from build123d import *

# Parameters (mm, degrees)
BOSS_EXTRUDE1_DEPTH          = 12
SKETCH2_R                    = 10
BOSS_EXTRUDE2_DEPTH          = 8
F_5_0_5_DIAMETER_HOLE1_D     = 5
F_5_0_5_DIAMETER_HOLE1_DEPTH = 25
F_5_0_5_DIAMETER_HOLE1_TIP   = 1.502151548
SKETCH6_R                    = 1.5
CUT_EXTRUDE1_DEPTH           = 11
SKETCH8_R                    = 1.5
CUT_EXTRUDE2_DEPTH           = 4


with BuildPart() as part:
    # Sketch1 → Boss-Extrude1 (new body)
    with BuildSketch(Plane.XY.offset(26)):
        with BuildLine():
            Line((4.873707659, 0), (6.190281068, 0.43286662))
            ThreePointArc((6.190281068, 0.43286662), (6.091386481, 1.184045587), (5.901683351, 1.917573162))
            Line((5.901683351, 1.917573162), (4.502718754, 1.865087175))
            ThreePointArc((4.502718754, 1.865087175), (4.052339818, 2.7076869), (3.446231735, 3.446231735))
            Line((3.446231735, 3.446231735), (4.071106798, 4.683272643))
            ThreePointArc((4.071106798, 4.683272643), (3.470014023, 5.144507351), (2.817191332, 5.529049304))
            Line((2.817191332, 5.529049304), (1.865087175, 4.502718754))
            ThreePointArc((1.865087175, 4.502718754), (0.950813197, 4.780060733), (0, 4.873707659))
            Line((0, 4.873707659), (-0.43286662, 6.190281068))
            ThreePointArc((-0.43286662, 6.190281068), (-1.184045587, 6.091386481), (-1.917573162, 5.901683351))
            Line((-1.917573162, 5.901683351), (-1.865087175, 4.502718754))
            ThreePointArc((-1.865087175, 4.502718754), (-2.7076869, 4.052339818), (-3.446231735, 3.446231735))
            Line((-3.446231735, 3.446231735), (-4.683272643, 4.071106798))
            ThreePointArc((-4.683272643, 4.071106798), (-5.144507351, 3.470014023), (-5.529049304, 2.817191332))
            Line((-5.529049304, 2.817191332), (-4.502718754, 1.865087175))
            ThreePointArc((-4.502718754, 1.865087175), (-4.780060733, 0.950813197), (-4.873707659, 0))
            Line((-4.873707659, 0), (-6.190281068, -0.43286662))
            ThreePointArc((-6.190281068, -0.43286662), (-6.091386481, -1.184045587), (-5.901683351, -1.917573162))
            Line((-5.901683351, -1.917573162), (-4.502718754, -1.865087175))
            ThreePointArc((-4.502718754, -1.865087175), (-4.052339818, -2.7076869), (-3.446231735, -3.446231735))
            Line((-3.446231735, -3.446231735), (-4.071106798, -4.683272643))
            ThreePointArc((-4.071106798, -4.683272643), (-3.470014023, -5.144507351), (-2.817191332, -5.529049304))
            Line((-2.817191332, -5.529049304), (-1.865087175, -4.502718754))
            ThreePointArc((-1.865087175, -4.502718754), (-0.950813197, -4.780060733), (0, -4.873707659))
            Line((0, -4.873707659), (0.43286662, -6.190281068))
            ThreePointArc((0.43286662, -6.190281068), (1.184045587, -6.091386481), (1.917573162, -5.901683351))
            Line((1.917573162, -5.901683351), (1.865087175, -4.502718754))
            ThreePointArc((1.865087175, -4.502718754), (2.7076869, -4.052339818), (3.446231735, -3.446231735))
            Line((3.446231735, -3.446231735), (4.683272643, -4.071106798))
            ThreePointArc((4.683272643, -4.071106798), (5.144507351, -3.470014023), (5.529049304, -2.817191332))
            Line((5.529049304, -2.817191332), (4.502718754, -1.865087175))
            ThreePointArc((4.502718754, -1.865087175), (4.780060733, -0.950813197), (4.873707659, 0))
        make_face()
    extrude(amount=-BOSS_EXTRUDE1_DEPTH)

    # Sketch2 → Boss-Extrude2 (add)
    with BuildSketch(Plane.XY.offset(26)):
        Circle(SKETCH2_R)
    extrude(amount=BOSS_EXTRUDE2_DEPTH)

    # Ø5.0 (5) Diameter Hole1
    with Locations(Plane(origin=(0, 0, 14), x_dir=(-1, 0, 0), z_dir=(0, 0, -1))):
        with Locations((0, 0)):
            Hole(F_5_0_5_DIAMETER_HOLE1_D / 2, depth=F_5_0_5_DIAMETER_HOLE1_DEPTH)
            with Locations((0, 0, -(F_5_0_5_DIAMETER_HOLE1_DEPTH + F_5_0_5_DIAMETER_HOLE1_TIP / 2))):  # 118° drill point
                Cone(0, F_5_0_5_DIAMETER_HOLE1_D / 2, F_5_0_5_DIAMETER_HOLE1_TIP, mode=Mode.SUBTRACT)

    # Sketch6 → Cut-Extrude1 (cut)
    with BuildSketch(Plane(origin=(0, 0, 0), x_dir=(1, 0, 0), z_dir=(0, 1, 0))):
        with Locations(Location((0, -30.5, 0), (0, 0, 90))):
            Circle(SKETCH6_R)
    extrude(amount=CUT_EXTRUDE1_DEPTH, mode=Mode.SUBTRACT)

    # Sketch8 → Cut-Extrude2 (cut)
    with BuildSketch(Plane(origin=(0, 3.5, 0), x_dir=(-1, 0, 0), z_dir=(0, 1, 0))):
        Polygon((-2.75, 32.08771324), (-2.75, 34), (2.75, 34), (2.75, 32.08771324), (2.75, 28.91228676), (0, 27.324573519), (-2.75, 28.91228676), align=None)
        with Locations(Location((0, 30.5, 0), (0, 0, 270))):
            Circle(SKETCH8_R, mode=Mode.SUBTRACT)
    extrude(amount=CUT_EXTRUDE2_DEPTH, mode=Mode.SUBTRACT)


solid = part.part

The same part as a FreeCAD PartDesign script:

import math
import FreeCAD as App
import Part
import Sketcher

V = App.Vector
Q = App.Units.Quantity


def add_polygon(sketch, points):
    """Adds a closed chain of lines whose ends are joined by coincident constraints."""
    first, n = sketch.GeometryCount, len(points)
    for a, b in zip(points, points[1:] + points[:1]):
        sketch.addGeometry(Part.LineSegment(App.Vector(*a, 0), App.Vector(*b, 0)), False)
    for i in range(n):
        sketch.addConstraint(Sketcher.Constraint("Coincident", first + i, 2, first + (i + 1) % n, 1))

doc = App.newDocument("Part")
params = doc.addObject("Spreadsheet::Sheet", "Params")
for row, (alias, value) in enumerate([
    ("pad1_length", "12 mm"),
    ("sketch2_diameter", "20 mm"),
    ("pad2_length", "8 mm"),
    ("sketch3_diameter", "5 mm"),
    ("hole_diameter", "5 mm"),
    ("hole_depth", "25 mm"),
    ("sketch4_diameter", "3 mm"),
    ("pocket1_length", "11 mm"),
    ("sketch5_diameter", "3 mm"),
    ("sketch5_width", "5.5 mm"),
    ("pocket2_length", "4 mm"),
], start=1):
    params.set(f"A{row}", alias)
    params.set(f"B{row}", "=" + value)
    params.setAlias(f"B{row}", alias)

body = doc.addObject("PartDesign::Body", "Body")

sketch1 = doc.addObject("Sketcher::SketchObject", "Sketch")
body.addObject(sketch1)
sketch1.AttachmentSupport = (doc.XY_Plane, [""])
sketch1.MapMode = "FlatFace"
sketch1.AttachmentOffset = App.Placement(V(0, 0, 26), App.Rotation())
sketch1.addGeometry(Part.LineSegment(V(4.9, 0, 0), V(6.2, 0.4, 0)), False)
sketch1.addGeometry(Part.ArcOfCircle(Part.Circle(V(0, 0, 0), V(0, 0, 1), 6.2), math.radians(4), math.radians(18)), False)
sketch1.addGeometry(Part.LineSegment(V(5.9, 1.9, 0), V(4.5, 1.9, 0)), False)
sketch1.addGeometry(Part.ArcOfCircle(Part.Circle(V(0, 0, 0), V(0, 0, 1), 4.9), math.radians(22), math.radians(45)), False)
sketch1.addGeometry(Part.LineSegment(V(3.4, 3.4, 0), V(4.1, 4.7, 0)), False)
sketch1.addGeometry(Part.ArcOfCircle(Part.Circle(V(0, 0, 0), V(0, 0, 1), 6.2), math.radians(49), math.radians(63)), False)
sketch1.addGeometry(Part.LineSegment(V(2.8, 5.5, 0), V(1.9, 4.5, 0)), False)
sketch1.addGeometry(Part.ArcOfCircle(Part.Circle(V(0, 0, 0), V(0, 0, 1), 4.9), math.radians(68), math.radians(90)), False)
sketch1.addGeometry(Part.LineSegment(V(0, 4.9, 0), V(-0.4, 6.2, 0)), False)
sketch1.addGeometry(Part.ArcOfCircle(Part.Circle(V(0, 0, 0), V(0, 0, 1), 6.2), math.radians(94), math.radians(108)), False)
sketch1.addGeometry(Part.LineSegment(V(-1.9, 5.9, 0), V(-1.9, 4.5, 0)), False)
sketch1.addGeometry(Part.ArcOfCircle(Part.Circle(V(0, 0, 0), V(0, 0, 1), 4.9), math.radians(112), math.radians(135)), False)
sketch1.addGeometry(Part.LineSegment(V(-3.4, 3.4, 0), V(-4.7, 4.1, 0)), False)
sketch1.addGeometry(Part.ArcOfCircle(Part.Circle(V(0, 0, 0), V(0, 0, 1), 6.2), math.radians(139), math.radians(153)), False)
sketch1.addGeometry(Part.LineSegment(V(-5.5, 2.8, 0), V(-4.5, 1.9, 0)), False)
sketch1.addGeometry(Part.ArcOfCircle(Part.Circle(V(0, 0, 0), V(0, 0, 1), 4.9), math.radians(158), math.radians(180)), False)
sketch1.addGeometry(Part.LineSegment(V(-4.9, 0, 0), V(-6.2, -0.4, 0)), False)
sketch1.addGeometry(Part.ArcOfCircle(Part.Circle(V(0, 0, 0), V(0, 0, 1), 6.2), math.radians(-176), math.radians(-162)), False)
sketch1.addGeometry(Part.LineSegment(V(-5.9, -1.9, 0), V(-4.5, -1.9, 0)), False)
sketch1.addGeometry(Part.ArcOfCircle(Part.Circle(V(0, 0, 0), V(0, 0, 1), 4.9), math.radians(-158), math.radians(-135)), False)
sketch1.addGeometry(Part.LineSegment(V(-3.4, -3.4, 0), V(-4.1, -4.7, 0)), False)
sketch1.addGeometry(Part.ArcOfCircle(Part.Circle(V(0, 0, 0), V(0, 0, 1), 6.2), math.radians(-131), math.radians(-117)), False)
sketch1.addGeometry(Part.LineSegment(V(-2.8, -5.5, 0), V(-1.9, -4.5, 0)), False)
sketch1.addGeometry(Part.ArcOfCircle(Part.Circle(V(0, 0, 0), V(0, 0, 1), 4.9), math.radians(-112), math.radians(-90)), False)
sketch1.addGeometry(Part.LineSegment(V(0, -4.9, 0), V(0.4, -6.2, 0)), False)
sketch1.addGeometry(Part.ArcOfCircle(Part.Circle(V(0, 0, 0), V(0, 0, 1), 6.2), math.radians(-86), math.radians(-72)), False)
sketch1.addGeometry(Part.LineSegment(V(1.9, -5.9, 0), V(1.9, -4.5, 0)), False)
sketch1.addGeometry(Part.ArcOfCircle(Part.Circle(V(0, 0, 0), V(0, 0, 1), 4.9), math.radians(-68), math.radians(-45)), False)
sketch1.addGeometry(Part.LineSegment(V(3.4, -3.4, 0), V(4.7, -4.1, 0)), False)
sketch1.addGeometry(Part.ArcOfCircle(Part.Circle(V(0, 0, 0), V(0, 0, 1), 6.2), math.radians(-41), math.radians(-27)), False)
sketch1.addGeometry(Part.LineSegment(V(5.5, -2.8, 0), V(4.5, -1.9, 0)), False)
sketch1.addGeometry(Part.ArcOfCircle(Part.Circle(V(0, 0, 0), V(0, 0, 1), 4.9), math.radians(-22), math.radians(0)), False)
sketch1.addConstraint(Sketcher.Constraint("Coincident", 0, 2, 1, 1))
sketch1.addConstraint(Sketcher.Constraint("Coincident", 1, 2, 2, 1))
sketch1.addConstraint(Sketcher.Constraint("Coincident", 2, 2, 3, 1))
sketch1.addConstraint(Sketcher.Constraint("Coincident", 3, 2, 4, 1))
sketch1.addConstraint(Sketcher.Constraint("Coincident", 4, 2, 5, 1))
sketch1.addConstraint(Sketcher.Constraint("Coincident", 5, 2, 6, 1))
sketch1.addConstraint(Sketcher.Constraint("Coincident", 6, 2, 7, 1))
sketch1.addConstraint(Sketcher.Constraint("Coincident", 7, 2, 8, 1))
sketch1.addConstraint(Sketcher.Constraint("Coincident", 8, 2, 9, 1))
sketch1.addConstraint(Sketcher.Constraint("Coincident", 9, 2, 10, 1))
sketch1.addConstraint(Sketcher.Constraint("Coincident", 10, 2, 11, 1))
sketch1.addConstraint(Sketcher.Constraint("Coincident", 11, 2, 12, 1))
sketch1.addConstraint(Sketcher.Constraint("Coincident", 12, 2, 13, 1))
sketch1.addConstraint(Sketcher.Constraint("Coincident", 13, 2, 14, 1))
sketch1.addConstraint(Sketcher.Constraint("Coincident", 14, 2, 15, 1))
sketch1.addConstraint(Sketcher.Constraint("Coincident", 15, 2, 16, 1))
sketch1.addConstraint(Sketcher.Constraint("Coincident", 16, 2, 17, 1))
sketch1.addConstraint(Sketcher.Constraint("Coincident", 17, 2, 18, 1))
sketch1.addConstraint(Sketcher.Constraint("Coincident", 18, 2, 19, 1))
sketch1.addConstraint(Sketcher.Constraint("Coincident", 19, 2, 20, 1))
sketch1.addConstraint(Sketcher.Constraint("Coincident", 20, 2, 21, 1))
sketch1.addConstraint(Sketcher.Constraint("Coincident", 21, 2, 22, 1))
sketch1.addConstraint(Sketcher.Constraint("Coincident", 22, 2, 23, 1))
sketch1.addConstraint(Sketcher.Constraint("Coincident", 23, 2, 24, 1))
sketch1.addConstraint(Sketcher.Constraint("Coincident", 24, 2, 25, 1))
sketch1.addConstraint(Sketcher.Constraint("Coincident", 25, 2, 26, 1))
sketch1.addConstraint(Sketcher.Constraint("Coincident", 26, 2, 27, 1))
sketch1.addConstraint(Sketcher.Constraint("Coincident", 27, 2, 28, 1))
sketch1.addConstraint(Sketcher.Constraint("Coincident", 28, 2, 29, 1))
sketch1.addConstraint(Sketcher.Constraint("Coincident", 29, 2, 30, 1))
sketch1.addConstraint(Sketcher.Constraint("Coincident", 30, 2, 31, 1))
sketch1.addConstraint(Sketcher.Constraint("Coincident", 31, 2, 0, 1))
sketch1.addConstraint(Sketcher.Constraint("Coincident", 1, 3, -1, 1))
sketch1.addConstraint(Sketcher.Constraint("Coincident", 3, 3, -1, 1))
sketch1.addConstraint(Sketcher.Constraint("Coincident", 5, 3, -1, 1))
sketch1.addConstraint(Sketcher.Constraint("Coincident", 7, 3, -1, 1))
sketch1.addConstraint(Sketcher.Constraint("Coincident", 9, 3, -1, 1))
sketch1.addConstraint(Sketcher.Constraint("Coincident", 11, 3, -1, 1))
sketch1.addConstraint(Sketcher.Constraint("Coincident", 13, 3, -1, 1))
sketch1.addConstraint(Sketcher.Constraint("Coincident", 15, 3, -1, 1))
sketch1.addConstraint(Sketcher.Constraint("Coincident", 17, 3, -1, 1))
sketch1.addConstraint(Sketcher.Constraint("Coincident", 19, 3, -1, 1))
sketch1.addConstraint(Sketcher.Constraint("Coincident", 21, 3, -1, 1))
sketch1.addConstraint(Sketcher.Constraint("Coincident", 23, 3, -1, 1))
sketch1.addConstraint(Sketcher.Constraint("Coincident", 25, 3, -1, 1))
sketch1.addConstraint(Sketcher.Constraint("Coincident", 27, 3, -1, 1))
sketch1.addConstraint(Sketcher.Constraint("Coincident", 29, 3, -1, 1))
sketch1.addConstraint(Sketcher.Constraint("Coincident", 31, 3, -1, 1))
sketch1.addConstraint(Sketcher.Constraint("Equal", 1, 5))
sketch1.addConstraint(Sketcher.Constraint("Equal", 3, 7))
sketch1.addConstraint(Sketcher.Constraint("Equal", 5, 9))
sketch1.addConstraint(Sketcher.Constraint("Equal", 7, 11))
sketch1.addConstraint(Sketcher.Constraint("Equal", 9, 13))
sketch1.addConstraint(Sketcher.Constraint("Equal", 11, 15))
sketch1.addConstraint(Sketcher.Constraint("Equal", 13, 17))
sketch1.addConstraint(Sketcher.Constraint("Equal", 15, 19))
sketch1.addConstraint(Sketcher.Constraint("Equal", 17, 21))
sketch1.addConstraint(Sketcher.Constraint("Equal", 19, 23))
sketch1.addConstraint(Sketcher.Constraint("Equal", 21, 25))
sketch1.addConstraint(Sketcher.Constraint("Equal", 23, 27))
sketch1.addConstraint(Sketcher.Constraint("Equal", 25, 29))
sketch1.addConstraint(Sketcher.Constraint("Equal", 27, 31))
sketch1.addConstraint(Sketcher.Constraint("PointOnObject", 7, 2, -2))
sketch1.addConstraint(Sketcher.Constraint("PointOnObject", 15, 2, -1))
sketch1.addConstraint(Sketcher.Constraint("PointOnObject", 23, 2, -2))
sketch1.addConstraint(Sketcher.Constraint("PointOnObject", 31, 2, -1))
sketch1.addConstraint(Sketcher.Constraint("Perpendicular", 0, 8))
sketch1.addConstraint(Sketcher.Constraint("Perpendicular", 2, 10))
sketch1.addConstraint(Sketcher.Constraint("Perpendicular", 4, 12))
sketch1.addConstraint(Sketcher.Constraint("Perpendicular", 6, 14))
sketch1.addConstraint(Sketcher.Constraint("Perpendicular", 8, 16))
sketch1.addConstraint(Sketcher.Constraint("Perpendicular", 10, 18))
sketch1.addConstraint(Sketcher.Constraint("Perpendicular", 12, 20))
sketch1.addConstraint(Sketcher.Constraint("Perpendicular", 14, 22))
sketch1.addConstraint(Sketcher.Constraint("Perpendicular", 16, 24))
sketch1.addConstraint(Sketcher.Constraint("Perpendicular", 18, 26))
sketch1.addConstraint(Sketcher.Constraint("Perpendicular", 20, 28))
sketch1.addConstraint(Sketcher.Constraint("Perpendicular", 22, 30))
sketch1.addConstraint(Sketcher.Constraint("Horizontal", 6, 2, 10, 2))
sketch1.addConstraint(Sketcher.Constraint("Horizontal", 3, 2, 11, 2))
sketch1.addConstraint(Sketcher.Constraint("Horizontal", 2, 2, 14, 2))
sketch1.addConstraint(Sketcher.Constraint("Horizontal", 22, 2, 26, 2))
sketch1.addConstraint(Sketcher.Constraint("Horizontal", 19, 2, 27, 2))
sketch1.addConstraint(Sketcher.Constraint("Horizontal", 18, 2, 30, 2))
sketch1.addConstraint(Sketcher.Constraint("Vertical", 14, 2, 18, 2))
sketch1.addConstraint(Sketcher.Constraint("Vertical", 11, 2, 19, 2))
sketch1.addConstraint(Sketcher.Constraint("Vertical", 10, 2, 22, 2))
sketch1.addConstraint(Sketcher.Constraint("Equal", 0, 4))
sketch1.addConstraint(Sketcher.Constraint("Equal", 2, 6))
sketch1.addConstraint(Sketcher.Constraint("Equal", 6, 10))
sketch1.addConstraint(Sketcher.Constraint("Equal", 8, 12))
sketch1.addConstraint(Sketcher.Constraint("Radius", 1, Q("6.205397 mm")))
sketch1.addConstraint(Sketcher.Constraint("Radius", 3, Q("4.873708 mm")))
sketch1.addConstraint(Sketcher.Constraint("DistanceY", 1, 2, 4, 2, Q("2.765699 mm")))
sketch1.addConstraint(Sketcher.Constraint("DistanceX", 8, 2, 3, 2, Q("3.879098 mm")))
sketch1.addConstraint(Sketcher.Constraint("Distance", 2, Q("1.399949 mm")))
pad1 = doc.addObject("PartDesign::Pad", "Pad")
body.addObject(pad1)
pad1.Profile = sketch1
pad1.setExpression("Length", "Params.pad1_length")
pad1.Reversed = True

sketch2 = doc.addObject("Sketcher::SketchObject", "Sketch001")
body.addObject(sketch2)
sketch2.AttachmentSupport = (doc.XY_Plane, [""])
sketch2.MapMode = "FlatFace"
sketch2.AttachmentOffset = App.Placement(V(0, 0, 26), App.Rotation())
sketch2.addGeometry(Part.Circle(V(0, 0, 0), V(0, 0, 1), 10), False)
sketch2.addConstraint(Sketcher.Constraint("Coincident", 0, 3, -1, 1))
sketch2.addConstraint(Sketcher.Constraint("Diameter", 0, Q("20 mm")))
sketch2.setExpression("Constraints[1]", "Params.sketch2_diameter")
pad2 = doc.addObject("PartDesign::Pad", "Pad001")
body.addObject(pad2)
pad2.Profile = sketch2
pad2.setExpression("Length", "Params.pad2_length")

sketch3 = doc.addObject("Sketcher::SketchObject", "Sketch002")
body.addObject(sketch3)
sketch3.AttachmentSupport = (doc.XY_Plane, [""])
sketch3.MapMode = "FlatFace"
sketch3.AttachmentOffset = App.Placement(V(0, 0, 14), App.Rotation())
sketch3.addGeometry(Part.Circle(V(0, 0, 0), V(0, 0, 1), 2.5), False)
sketch3.addConstraint(Sketcher.Constraint("Coincident", 0, 3, -1, 1))
sketch3.addConstraint(Sketcher.Constraint("Diameter", 0, Q("5 mm")))
sketch3.setExpression("Constraints[1]", "Params.sketch3_diameter")
doc.recompute()
hole = doc.addObject("PartDesign::Hole", "Hole")
body.addObject(hole)
hole.Profile = sketch3
hole.ThreadType = "None"
hole.setExpression("Diameter", "Params.hole_diameter")
hole.DepthType = "Dimension"
hole.setExpression("Depth", "Params.hole_depth")
hole.DrillPoint = "Angled"
hole.DrillPointAngle = 118
hole.Reversed = True

sketch4 = doc.addObject("Sketcher::SketchObject", "Sketch003")
body.addObject(sketch4)
sketch4.AttachmentSupport = (doc.XZ_Plane, [""])
sketch4.MapMode = "FlatFace"
sketch4.addGeometry(Part.Circle(V(0, 30.5, 0), V(0, 0, 1), 1.5), False)
sketch4.addConstraint(Sketcher.Constraint("PointOnObject", 0, 3, -2))
sketch4.addConstraint(Sketcher.Constraint("Diameter", 0, Q("3 mm")))
sketch4.addConstraint(Sketcher.Constraint("DistanceY", -1, 1, 0, 3, Q("30.5 mm")))
sketch4.setExpression("Constraints[1]", "Params.sketch4_diameter")
pocket1 = doc.addObject("PartDesign::Pocket", "Pocket")
body.addObject(pocket1)
pocket1.Profile = sketch4
pocket1.setExpression("Length", "Params.pocket1_length")

sketch5 = doc.addObject("Sketcher::SketchObject", "Sketch004")
body.addObject(sketch5)
sketch5.AttachmentSupport = (doc.XZ_Plane, [""])
sketch5.MapMode = "FlatFace"
sketch5.AttachmentOffset = App.Placement(V(0, 0, -3.5), App.Rotation())
add_polygon(sketch5, [(2.8, 34), (2.8, 28.9), (0, 27.3), (-2.8, 28.9), (-2.8, 34)])
sketch5.addGeometry(Part.Circle(V(0, 30.5, 0), V(0, 0, 1), 1.5), False)
sketch5.addConstraint(Sketcher.Constraint("Vertical", 0))
sketch5.addConstraint(Sketcher.Constraint("Vertical", 3))
sketch5.addConstraint(Sketcher.Constraint("Horizontal", 4))
sketch5.addConstraint(Sketcher.Constraint("Symmetric", 0, 2, 2, 2, -2))
sketch5.addConstraint(Sketcher.Constraint("PointOnObject", 5, 3, -2))
sketch5.addConstraint(Sketcher.Constraint("PointOnObject", 1, 2, -2))
sketch5.addConstraint(Sketcher.Constraint("Diameter", 5, Q("3 mm")))
sketch5.addConstraint(Sketcher.Constraint("Angle", 1, Q("-150 deg")))
sketch5.addConstraint(Sketcher.Constraint("DistanceX", 4, 1, 4, 2, Q("5.5 mm")))
sketch5.addConstraint(Sketcher.Constraint("DistanceY", -1, 1, 3, 2, Q("34 mm")))
sketch5.addConstraint(Sketcher.Constraint("DistanceY", -1, 1, 5, 3, Q("30.5 mm")))
sketch5.addConstraint(Sketcher.Constraint("DistanceY", 0, 2, 0, 1, Q("5.087713 mm")))
sketch5.setExpression("Constraints[11]", "Params.sketch5_diameter")
sketch5.setExpression("Constraints[13]", "Params.sketch5_width")
pocket2 = doc.addObject("PartDesign::Pocket", "Pocket001")
body.addObject(pocket2)
pocket2.Profile = sketch5
pocket2.setExpression("Length", "Params.pocket2_length")

doc.recompute()
